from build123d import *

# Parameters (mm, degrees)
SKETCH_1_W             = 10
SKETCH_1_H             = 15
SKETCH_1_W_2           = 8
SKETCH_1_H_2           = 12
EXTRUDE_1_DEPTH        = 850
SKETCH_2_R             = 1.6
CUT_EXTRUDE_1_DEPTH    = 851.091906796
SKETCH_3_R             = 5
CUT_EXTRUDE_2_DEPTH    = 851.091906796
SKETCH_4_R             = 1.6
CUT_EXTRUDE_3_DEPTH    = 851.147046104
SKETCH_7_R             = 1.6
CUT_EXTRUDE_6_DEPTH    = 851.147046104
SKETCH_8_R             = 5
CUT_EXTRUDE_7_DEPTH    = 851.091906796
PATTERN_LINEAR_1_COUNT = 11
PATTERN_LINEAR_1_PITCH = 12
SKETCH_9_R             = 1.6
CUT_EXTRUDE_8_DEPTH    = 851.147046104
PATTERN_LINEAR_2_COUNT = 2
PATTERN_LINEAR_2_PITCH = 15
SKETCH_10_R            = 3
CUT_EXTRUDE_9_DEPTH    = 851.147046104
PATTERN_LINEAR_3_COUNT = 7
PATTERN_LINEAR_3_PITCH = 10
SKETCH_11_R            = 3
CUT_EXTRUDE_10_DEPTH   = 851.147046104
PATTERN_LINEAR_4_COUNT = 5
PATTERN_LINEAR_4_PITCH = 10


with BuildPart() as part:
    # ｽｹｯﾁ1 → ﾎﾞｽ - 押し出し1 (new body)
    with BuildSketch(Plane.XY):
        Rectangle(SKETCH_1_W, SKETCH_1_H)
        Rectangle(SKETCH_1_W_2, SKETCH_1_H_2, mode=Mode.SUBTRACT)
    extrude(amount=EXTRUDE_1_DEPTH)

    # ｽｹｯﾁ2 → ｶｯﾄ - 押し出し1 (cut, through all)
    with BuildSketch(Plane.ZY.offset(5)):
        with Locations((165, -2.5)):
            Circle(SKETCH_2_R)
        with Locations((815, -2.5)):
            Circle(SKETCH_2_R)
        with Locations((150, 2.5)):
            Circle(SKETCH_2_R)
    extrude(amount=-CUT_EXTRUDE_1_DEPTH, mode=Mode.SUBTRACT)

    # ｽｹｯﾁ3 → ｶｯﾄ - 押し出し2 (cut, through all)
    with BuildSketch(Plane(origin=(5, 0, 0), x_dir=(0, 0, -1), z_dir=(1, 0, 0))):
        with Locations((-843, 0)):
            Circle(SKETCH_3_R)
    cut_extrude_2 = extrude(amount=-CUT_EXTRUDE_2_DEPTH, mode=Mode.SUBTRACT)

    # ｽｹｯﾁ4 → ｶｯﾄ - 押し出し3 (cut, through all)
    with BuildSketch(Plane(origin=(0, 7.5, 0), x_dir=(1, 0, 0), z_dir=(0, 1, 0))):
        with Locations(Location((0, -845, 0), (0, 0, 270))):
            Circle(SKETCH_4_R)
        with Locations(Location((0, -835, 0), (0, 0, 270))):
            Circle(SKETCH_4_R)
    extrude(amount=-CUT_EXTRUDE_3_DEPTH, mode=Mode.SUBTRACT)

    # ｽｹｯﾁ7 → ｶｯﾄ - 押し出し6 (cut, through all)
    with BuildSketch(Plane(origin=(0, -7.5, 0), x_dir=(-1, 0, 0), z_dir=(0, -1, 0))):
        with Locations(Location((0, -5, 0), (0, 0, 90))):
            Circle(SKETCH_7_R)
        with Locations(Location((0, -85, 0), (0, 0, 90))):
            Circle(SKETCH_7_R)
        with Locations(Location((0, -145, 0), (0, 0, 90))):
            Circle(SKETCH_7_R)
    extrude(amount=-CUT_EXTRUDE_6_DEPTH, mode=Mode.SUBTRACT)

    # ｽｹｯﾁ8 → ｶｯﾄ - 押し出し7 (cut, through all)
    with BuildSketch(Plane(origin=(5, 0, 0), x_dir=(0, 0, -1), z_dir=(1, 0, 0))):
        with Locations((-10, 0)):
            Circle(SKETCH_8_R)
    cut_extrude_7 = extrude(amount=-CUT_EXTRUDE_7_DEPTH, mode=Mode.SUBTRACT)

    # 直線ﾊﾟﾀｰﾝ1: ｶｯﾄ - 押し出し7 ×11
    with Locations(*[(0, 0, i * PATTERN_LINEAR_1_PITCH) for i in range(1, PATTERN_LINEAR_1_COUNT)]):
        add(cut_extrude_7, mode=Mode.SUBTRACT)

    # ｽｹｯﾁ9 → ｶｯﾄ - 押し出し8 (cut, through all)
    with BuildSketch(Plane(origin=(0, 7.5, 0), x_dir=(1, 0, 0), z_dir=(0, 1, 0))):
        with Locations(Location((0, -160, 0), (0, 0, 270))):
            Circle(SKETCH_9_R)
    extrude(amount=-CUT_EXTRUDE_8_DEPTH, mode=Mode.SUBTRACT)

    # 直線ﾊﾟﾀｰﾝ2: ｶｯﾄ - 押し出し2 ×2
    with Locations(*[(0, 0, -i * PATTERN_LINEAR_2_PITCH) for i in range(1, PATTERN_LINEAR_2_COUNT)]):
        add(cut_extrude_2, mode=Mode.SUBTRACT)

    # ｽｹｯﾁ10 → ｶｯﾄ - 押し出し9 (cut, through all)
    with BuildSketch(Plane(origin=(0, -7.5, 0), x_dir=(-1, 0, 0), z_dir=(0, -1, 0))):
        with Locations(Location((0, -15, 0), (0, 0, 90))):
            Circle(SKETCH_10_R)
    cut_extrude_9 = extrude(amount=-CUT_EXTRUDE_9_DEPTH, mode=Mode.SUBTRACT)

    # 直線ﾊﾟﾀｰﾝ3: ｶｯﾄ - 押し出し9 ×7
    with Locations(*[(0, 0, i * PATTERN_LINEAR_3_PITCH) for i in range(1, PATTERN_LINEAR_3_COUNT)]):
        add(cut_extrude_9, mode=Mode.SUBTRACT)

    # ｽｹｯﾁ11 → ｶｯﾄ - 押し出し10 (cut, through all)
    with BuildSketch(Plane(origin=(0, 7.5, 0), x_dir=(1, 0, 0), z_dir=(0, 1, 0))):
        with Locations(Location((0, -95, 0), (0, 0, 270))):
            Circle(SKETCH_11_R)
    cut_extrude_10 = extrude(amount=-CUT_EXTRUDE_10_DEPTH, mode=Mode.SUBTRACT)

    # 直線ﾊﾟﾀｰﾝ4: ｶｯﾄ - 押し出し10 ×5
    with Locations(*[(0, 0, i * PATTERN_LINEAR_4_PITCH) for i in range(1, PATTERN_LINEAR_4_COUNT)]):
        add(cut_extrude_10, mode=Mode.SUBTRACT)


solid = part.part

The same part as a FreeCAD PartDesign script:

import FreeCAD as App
import Part
import Sketcher

V = App.Vector
Q = App.Units.Quantity

doc = App.newDocument("Part")
body = doc.addObject("PartDesign::Body", "Body")

# Sketch on XY plane
sketch1 = body.newObject("Sketcher::SketchObject", "Sketch")
sketch1.AttachmentSupport = (doc.getObject("XY_Plane"), [""])
sketch1.MapMode = "FlatFace"
sketch1.addGeometry(Part.LineSegment(V(-5, 8, 0), V(-5, -8, 0)), False)
sketch1.addGeometry(Part.LineSegment(V(-5, -8, 0), V(5, -8, 0)), False)
sketch1.addGeometry(Part.LineSegment(V(5, -8, 0), V(5, 8, 0)), False)
sketch1.addGeometry(Part.LineSegment(V(5, 8, 0), V(-5, 8, 0)), False)
sketch1.addGeometry(Part.LineSegment(V(4, -6, 0), V(-4, -6, 0)), False)
sketch1.addGeometry(Part.LineSegment(V(-4, -6, 0), V(-4, 6, 0)), False)
sketch1.addGeometry(Part.LineSegment(V(-4, 6, 0), V(4, 6, 0)), False)
sketch1.addGeometry(Part.LineSegment(V(4, 6, 0), V(4, -6, 0)), False)
sketch1.addConstraint(Sketcher.Constraint("Coincident", 0, 2, 1, 1))
sketch1.addConstraint(Sketcher.Constraint("Coincident", 1, 2, 2, 1))
sketch1.addConstraint(Sketcher.Constraint("Coincident", 2, 2, 3, 1))
sketch1.addConstraint(Sketcher.Constraint("Coincident", 3, 2, 0, 1))
sketch1.addConstraint(Sketcher.Constraint("Coincident", 4, 2, 5, 1))
sketch1.addConstraint(Sketcher.Constraint("Coincident", 5, 2, 6, 1))
sketch1.addConstraint(Sketcher.Constraint("Coincident", 6, 2, 7, 1))
sketch1.addConstraint(Sketcher.Constraint("Coincident", 7, 2, 4, 1))
sketch1.addConstraint(Sketcher.Constraint("Vertical", 0))
sketch1.addConstraint(Sketcher.Constraint("Horizontal", 1))
sketch1.addConstraint(Sketcher.Constraint("Vertical", 2))
sketch1.addConstraint(Sketcher.Constraint("Horizontal", 3))
sketch1.addConstraint(Sketcher.Constraint("Horizontal", 4))
sketch1.addConstraint(Sketcher.Constraint("Vertical", 5))
sketch1.addConstraint(Sketcher.Constraint("Horizontal", 6))
sketch1.addConstraint(Sketcher.Constraint("Vertical", 7))
sketch1.addConstraint(Sketcher.Constraint("Symmetric", 0, 2, 2, 2, -1, 1))
sketch1.addConstraint(Sketcher.Constraint("Symmetric", 4, 2, 6, 2, -1, 1))
sketch1.addConstraint(Sketcher.Constraint("DistanceX", 1, 1, 1, 2, Q("10 mm")))
sketch1.addConstraint(Sketcher.Constraint("DistanceX", 4, 2, 4, 1, Q("8 mm")))
sketch1.addConstraint(Sketcher.Constraint("DistanceY", 0, 2, 0, 1, Q("15 mm")))
sketch1.addConstraint(Sketcher.Constraint("DistanceY", 5, 1, 5, 2, Q("12 mm")))
pad1 = body.newObject("PartDesign::Pad", "Pad")
pad1.Profile = sketch1
pad1.Length = 850

# Sketch on YZ plane
sketch2 = body.newObject("Sketcher::SketchObject", "Sketch001")
sketch2.AttachmentSupport = (doc.getObject("YZ_Plane"), [""])
sketch2.MapMode = "FlatFace"
sketch2.AttachmentOffset = App.Placement(V(0, 0, -5), App.Rotation())
sketch2.addGeometry(Part.Circle(V(-2.5, 165, 0), V(0, 0, 1), 1.6), False)
sketch2.addGeometry(Part.Circle(V(-2.5, 815, 0), V(0, 0, 1), 1.6), False)
sketch2.addGeometry(Part.Circle(V(2.5, 150, 0), V(0, 0, 1), 1.6), False)
sketch2.addConstraint(Sketcher.Constraint("Equal", 0, 1))
sketch2.addConstraint(Sketcher.Constraint("Equal", 1, 2))
sketch2.addConstraint(Sketcher.Constraint("Vertical", 0, 3, 1, 3))
sketch2.addConstraint(Sketcher.Constraint("Diameter", 0, Q("3.2 mm")))
sketch2.addConstraint(Sketcher.Constraint("DistanceY", -1, 1, 0, 3, Q("165 mm")))
sketch2.addConstraint(Sketcher.Constraint("DistanceY", -1, 1, 1, 3, Q("815 mm")))
sketch2.addConstraint(Sketcher.Constraint("DistanceY", -1, 1, 2, 3, Q("150 mm")))
sketch2.addConstraint(Sketcher.Constraint("DistanceX", 0, 3, 2, 3, Q("5 mm")))
sketch2.addConstraint(Sketcher.Constraint("DistanceX", 0, 3, -1, 1, Q("2.5 mm")))
pocket1 = body.newObject("PartDesign::Pocket", "Pocket")
pocket1.Profile = sketch2
pocket1.Type = "ThroughAll"
pocket1.Reversed = True

# Sketch on YZ plane
sketch3 = body.newObject("Sketcher::SketchObject", "Sketch002")
sketch3.AttachmentSupport = (doc.getObject("YZ_Plane"), [""])
sketch3.MapMode = "FlatFace"
sketch3.AttachmentOffset = App.Placement(V(0, 0, 5), App.Rotation())
sketch3.addGeometry(Part.Circle(V(0, 843, 0), V(0, 0, 1), 5), False)
sketch3.addConstraint(Sketcher.Constraint("PointOnObject", 0, 3, -2))
sketch3.addConstraint(Sketcher.Constraint("Diameter", 0, Q("10 mm")))
sketch3.addConstraint(Sketcher.Constraint("DistanceY", -1, 1, 0, 3, Q("843 mm")))
pocket2 = body.newObject("PartDesign::Pocket", "Pocket001")
pocket2.Profile = sketch3
pocket2.Type = "ThroughAll"

# Sketch on XZ plane
sketch4 = body.newObject("Sketcher::SketchObject", "Sketch003")
sketch4.AttachmentSupport = (doc.getObject("XZ_Plane"), [""])
sketch4.MapMode = "FlatFace"
sketch4.AttachmentOffset = App.Placement(V(0, 0, -7.5), App.Rotation())
sketch4.addGeometry(Part.Circle(V(0, 845, 0), V(0, 0, 1), 1.6), False)
sketch4.addGeometry(Part.Circle(V(0, 835, 0), V(0, 0, 1), 1.6), False)
sketch4.addConstraint(Sketcher.Constraint("Equal", 0, 1))
sketch4.addConstraint(Sketcher.Constraint("PointOnObject", 0, 3, -2))
sketch4.addConstraint(Sketcher.Constraint("PointOnObject", 1, 3, -2))
sketch4.addConstraint(Sketcher.Constraint("Diameter", 0, Q("3.2 mm")))
sketch4.addConstraint(Sketcher.Constraint("DistanceY", -1, 1, 0, 3, Q("845 mm")))
sketch4.addConstraint(Sketcher.Constraint("DistanceY", -1, 1, 1, 3, Q("835 mm")))
pocket3 = body.newObject("PartDesign::Pocket", "Pocket002")
pocket3.Profile = sketch4
pocket3.Type = "ThroughAll"
pocket3.Reversed = True

# Sketch on XZ plane
sketch5 = body.newObject("Sketcher::SketchObject", "Sketch004")
sketch5.AttachmentSupport = (doc.getObject("XZ_Plane"), [""])
sketch5.MapMode = "FlatFace"
sketch5.AttachmentOffset = App.Placement(V(0, 0, 7.5), App.Rotation())
sketch5.addGeometry(Part.Circle(V(0, 5, 0), V(0, 0, 1), 1.6), False)
sketch5.addGeometry(Part.Circle(V(0, 85, 0), V(0, 0, 1), 1.6), False)
sketch5.addGeometry(Part.Circle(V(0, 145, 0), V(0, 0, 1), 1.6), False)
sketch5.addConstraint(Sketcher.Constraint("Equal", 0, 1))
sketch5.addConstraint(Sketcher.Constraint("Equal", 1, 2))
sketch5.addConstraint(Sketcher.Constraint("PointOnObject", 0, 3, -2))
sketch5.addConstraint(Sketcher.Constraint("PointOnObject", 1, 3, -2))
sketch5.addConstraint(Sketcher.Constraint("PointOnObject", 2, 3, -2))
sketch5.addConstraint(Sketcher.Constraint("Diameter", 0, Q("3.2 mm")))
sketch5.addConstraint(Sketcher.Constraint("DistanceY", -1, 1, 0, 3, Q("5 mm")))
sketch5.addConstraint(Sketcher.Constraint("DistanceY", -1, 1, 1, 3, Q("85 mm")))
sketch5.addConstraint(Sketcher.Constraint("DistanceY", -1, 1, 2, 3, Q("145 mm")))
pocket4 = body.newObject("PartDesign::Pocket", "Pocket003")
pocket4.Profile = sketch5
pocket4.Type = "ThroughAll"

# Sketch on YZ plane
sketch6 = body.newObject("Sketcher::SketchObject", "Sketch005")
sketch6.AttachmentSupport = (doc.getObject("YZ_Plane"), [""])
sketch6.MapMode = "FlatFace"
sketch6.AttachmentOffset = App.Placement(V(0, 0, 5), App.Rotation())
sketch6.addGeometry(Part.Circle(V(0, 10, 0), V(0, 0, 1), 5), False)
sketch6.addConstraint(Sketcher.Constraint("PointOnObject", 0, 3, -2))
sketch6.addConstraint(Sketcher.Constraint("Diameter", 0, Q("10 mm")))
sketch6.addConstraint(Sketcher.Constraint("DistanceY", -1, 1, 0, 3, Q("10 mm")))
pocket5 = body.newObject("PartDesign::Pocket", "Pocket004")
pocket5.Profile = sketch6
pocket5.Type = "ThroughAll"
doc.recompute()

linearpattern = body.newObject("PartDesign::LinearPattern", "LinearPattern")
linearpattern.Originals = [pocket5]
linearpattern.Direction = (doc.getObject("Z_Axis"), [""])
linearpattern.Mode = "offset"
linearpattern.Offset = 12
linearpattern.Occurrences = 11
body.Tip = linearpattern

# Sketch on XZ plane
sketch7 = body.newObject("Sketcher::SketchObject", "Sketch006")
sketch7.AttachmentSupport = (doc.getObject("XZ_Plane"), [""])
sketch7.MapMode = "FlatFace"
sketch7.AttachmentOffset = App.Placement(V(0, 0, -7.5), App.Rotation())
sketch7.addGeometry(Part.Circle(V(0, 160, 0), V(0, 0, 1), 1.6), False)
sketch7.addConstraint(Sketcher.Constraint("PointOnObject", 0, 3, -2))
sketch7.addConstraint(Sketcher.Constraint("Diameter", 0, Q("3.2 mm")))
sketch7.addConstraint(Sketcher.Constraint("DistanceY", -1, 1, 0, 3, Q("160 mm")))
pocket6 = body.newObject("PartDesign::Pocket", "Pocket005")
pocket6.Profile = sketch7
pocket6.Type = "ThroughAll"
pocket6.Reversed = True
doc.recompute()

linearpattern2 = body.newObject("PartDesign::LinearPattern", "LinearPattern001")
linearpattern2.Originals = [pocket2]
linearpattern2.Direction = (doc.getObject("Z_Axis"), [""])
linearpattern2.Mode = "offset"
linearpattern2.Offset = 15
linearpattern2.Occurrences = 2
linearpattern2.Reversed = True
body.Tip = linearpattern2

# Sketch on XZ plane
sketch8 = body.newObject("Sketcher::SketchObject", "Sketch007")
sketch8.AttachmentSupport = (doc.getObject("XZ_Plane"), [""])
sketch8.MapMode = "FlatFace"
sketch8.AttachmentOffset = App.Placement(V(0, 0, 7.5), App.Rotation())
sketch8.addGeometry(Part.Circle(V(0, 15, 0), V(0, 0, 1), 3), False)
sketch8.addConstraint(Sketcher.Constraint("PointOnObject", 0, 3, -2))
sketch8.addConstraint(Sketcher.Constraint("Diameter", 0, Q("6 mm")))
sketch8.addConstraint(Sketcher.Constraint("DistanceY", -1, 1, 0, 3, Q("15 mm")))
pocket7 = body.newObject("PartDesign::Pocket", "Pocket006")
pocket7.Profile = sketch8
pocket7.Type = "ThroughAll"
doc.recompute()

linearpattern3 = body.newObject("PartDesign::LinearPattern", "LinearPattern002")
linearpattern3.Originals = [pocket7]
linearpattern3.Direction = (doc.getObject("Z_Axis"), [""])
linearpattern3.Mode = "offset"
linearpattern3.Offset = 10
linearpattern3.Occurrences = 7
body.Tip = linearpattern3

# Sketch on XZ plane
sketch9 = body.newObject("Sketcher::SketchObject", "Sketch008")
sketch9.AttachmentSupport = (doc.getObject("XZ_Plane"), [""])
sketch9.MapMode = "FlatFace"
sketch9.AttachmentOffset = App.Placement(V(0, 0, -7.5), App.Rotation())
sketch9.addGeometry(Part.Circle(V(0, 95, 0), V(0, 0, 1), 3), False)
sketch9.addConstraint(Sketcher.Constraint("PointOnObject", 0, 3, -2))
sketch9.addConstraint(Sketcher.Constraint("Diameter", 0, Q("6 mm")))
sketch9.addConstraint(Sketcher.Constraint("DistanceY", -1, 1, 0, 3, Q("95 mm")))
pocket8 = body.newObject("PartDesign::Pocket", "Pocket007")
pocket8.Profile = sketch9
pocket8.Type = "ThroughAll"
pocket8.Reversed = True
doc.recompute()

linearpattern4 = body.newObject("PartDesign::LinearPattern", "LinearPattern003")
linearpattern4.Originals = [pocket8]
linearpattern4.Direction = (doc.getObject("Z_Axis"), [""])
linearpattern4.Mode = "offset"
linearpattern4.Offset = 10
linearpattern4.Occurrences = 5
body.Tip = linearpattern4

doc.recompute()
